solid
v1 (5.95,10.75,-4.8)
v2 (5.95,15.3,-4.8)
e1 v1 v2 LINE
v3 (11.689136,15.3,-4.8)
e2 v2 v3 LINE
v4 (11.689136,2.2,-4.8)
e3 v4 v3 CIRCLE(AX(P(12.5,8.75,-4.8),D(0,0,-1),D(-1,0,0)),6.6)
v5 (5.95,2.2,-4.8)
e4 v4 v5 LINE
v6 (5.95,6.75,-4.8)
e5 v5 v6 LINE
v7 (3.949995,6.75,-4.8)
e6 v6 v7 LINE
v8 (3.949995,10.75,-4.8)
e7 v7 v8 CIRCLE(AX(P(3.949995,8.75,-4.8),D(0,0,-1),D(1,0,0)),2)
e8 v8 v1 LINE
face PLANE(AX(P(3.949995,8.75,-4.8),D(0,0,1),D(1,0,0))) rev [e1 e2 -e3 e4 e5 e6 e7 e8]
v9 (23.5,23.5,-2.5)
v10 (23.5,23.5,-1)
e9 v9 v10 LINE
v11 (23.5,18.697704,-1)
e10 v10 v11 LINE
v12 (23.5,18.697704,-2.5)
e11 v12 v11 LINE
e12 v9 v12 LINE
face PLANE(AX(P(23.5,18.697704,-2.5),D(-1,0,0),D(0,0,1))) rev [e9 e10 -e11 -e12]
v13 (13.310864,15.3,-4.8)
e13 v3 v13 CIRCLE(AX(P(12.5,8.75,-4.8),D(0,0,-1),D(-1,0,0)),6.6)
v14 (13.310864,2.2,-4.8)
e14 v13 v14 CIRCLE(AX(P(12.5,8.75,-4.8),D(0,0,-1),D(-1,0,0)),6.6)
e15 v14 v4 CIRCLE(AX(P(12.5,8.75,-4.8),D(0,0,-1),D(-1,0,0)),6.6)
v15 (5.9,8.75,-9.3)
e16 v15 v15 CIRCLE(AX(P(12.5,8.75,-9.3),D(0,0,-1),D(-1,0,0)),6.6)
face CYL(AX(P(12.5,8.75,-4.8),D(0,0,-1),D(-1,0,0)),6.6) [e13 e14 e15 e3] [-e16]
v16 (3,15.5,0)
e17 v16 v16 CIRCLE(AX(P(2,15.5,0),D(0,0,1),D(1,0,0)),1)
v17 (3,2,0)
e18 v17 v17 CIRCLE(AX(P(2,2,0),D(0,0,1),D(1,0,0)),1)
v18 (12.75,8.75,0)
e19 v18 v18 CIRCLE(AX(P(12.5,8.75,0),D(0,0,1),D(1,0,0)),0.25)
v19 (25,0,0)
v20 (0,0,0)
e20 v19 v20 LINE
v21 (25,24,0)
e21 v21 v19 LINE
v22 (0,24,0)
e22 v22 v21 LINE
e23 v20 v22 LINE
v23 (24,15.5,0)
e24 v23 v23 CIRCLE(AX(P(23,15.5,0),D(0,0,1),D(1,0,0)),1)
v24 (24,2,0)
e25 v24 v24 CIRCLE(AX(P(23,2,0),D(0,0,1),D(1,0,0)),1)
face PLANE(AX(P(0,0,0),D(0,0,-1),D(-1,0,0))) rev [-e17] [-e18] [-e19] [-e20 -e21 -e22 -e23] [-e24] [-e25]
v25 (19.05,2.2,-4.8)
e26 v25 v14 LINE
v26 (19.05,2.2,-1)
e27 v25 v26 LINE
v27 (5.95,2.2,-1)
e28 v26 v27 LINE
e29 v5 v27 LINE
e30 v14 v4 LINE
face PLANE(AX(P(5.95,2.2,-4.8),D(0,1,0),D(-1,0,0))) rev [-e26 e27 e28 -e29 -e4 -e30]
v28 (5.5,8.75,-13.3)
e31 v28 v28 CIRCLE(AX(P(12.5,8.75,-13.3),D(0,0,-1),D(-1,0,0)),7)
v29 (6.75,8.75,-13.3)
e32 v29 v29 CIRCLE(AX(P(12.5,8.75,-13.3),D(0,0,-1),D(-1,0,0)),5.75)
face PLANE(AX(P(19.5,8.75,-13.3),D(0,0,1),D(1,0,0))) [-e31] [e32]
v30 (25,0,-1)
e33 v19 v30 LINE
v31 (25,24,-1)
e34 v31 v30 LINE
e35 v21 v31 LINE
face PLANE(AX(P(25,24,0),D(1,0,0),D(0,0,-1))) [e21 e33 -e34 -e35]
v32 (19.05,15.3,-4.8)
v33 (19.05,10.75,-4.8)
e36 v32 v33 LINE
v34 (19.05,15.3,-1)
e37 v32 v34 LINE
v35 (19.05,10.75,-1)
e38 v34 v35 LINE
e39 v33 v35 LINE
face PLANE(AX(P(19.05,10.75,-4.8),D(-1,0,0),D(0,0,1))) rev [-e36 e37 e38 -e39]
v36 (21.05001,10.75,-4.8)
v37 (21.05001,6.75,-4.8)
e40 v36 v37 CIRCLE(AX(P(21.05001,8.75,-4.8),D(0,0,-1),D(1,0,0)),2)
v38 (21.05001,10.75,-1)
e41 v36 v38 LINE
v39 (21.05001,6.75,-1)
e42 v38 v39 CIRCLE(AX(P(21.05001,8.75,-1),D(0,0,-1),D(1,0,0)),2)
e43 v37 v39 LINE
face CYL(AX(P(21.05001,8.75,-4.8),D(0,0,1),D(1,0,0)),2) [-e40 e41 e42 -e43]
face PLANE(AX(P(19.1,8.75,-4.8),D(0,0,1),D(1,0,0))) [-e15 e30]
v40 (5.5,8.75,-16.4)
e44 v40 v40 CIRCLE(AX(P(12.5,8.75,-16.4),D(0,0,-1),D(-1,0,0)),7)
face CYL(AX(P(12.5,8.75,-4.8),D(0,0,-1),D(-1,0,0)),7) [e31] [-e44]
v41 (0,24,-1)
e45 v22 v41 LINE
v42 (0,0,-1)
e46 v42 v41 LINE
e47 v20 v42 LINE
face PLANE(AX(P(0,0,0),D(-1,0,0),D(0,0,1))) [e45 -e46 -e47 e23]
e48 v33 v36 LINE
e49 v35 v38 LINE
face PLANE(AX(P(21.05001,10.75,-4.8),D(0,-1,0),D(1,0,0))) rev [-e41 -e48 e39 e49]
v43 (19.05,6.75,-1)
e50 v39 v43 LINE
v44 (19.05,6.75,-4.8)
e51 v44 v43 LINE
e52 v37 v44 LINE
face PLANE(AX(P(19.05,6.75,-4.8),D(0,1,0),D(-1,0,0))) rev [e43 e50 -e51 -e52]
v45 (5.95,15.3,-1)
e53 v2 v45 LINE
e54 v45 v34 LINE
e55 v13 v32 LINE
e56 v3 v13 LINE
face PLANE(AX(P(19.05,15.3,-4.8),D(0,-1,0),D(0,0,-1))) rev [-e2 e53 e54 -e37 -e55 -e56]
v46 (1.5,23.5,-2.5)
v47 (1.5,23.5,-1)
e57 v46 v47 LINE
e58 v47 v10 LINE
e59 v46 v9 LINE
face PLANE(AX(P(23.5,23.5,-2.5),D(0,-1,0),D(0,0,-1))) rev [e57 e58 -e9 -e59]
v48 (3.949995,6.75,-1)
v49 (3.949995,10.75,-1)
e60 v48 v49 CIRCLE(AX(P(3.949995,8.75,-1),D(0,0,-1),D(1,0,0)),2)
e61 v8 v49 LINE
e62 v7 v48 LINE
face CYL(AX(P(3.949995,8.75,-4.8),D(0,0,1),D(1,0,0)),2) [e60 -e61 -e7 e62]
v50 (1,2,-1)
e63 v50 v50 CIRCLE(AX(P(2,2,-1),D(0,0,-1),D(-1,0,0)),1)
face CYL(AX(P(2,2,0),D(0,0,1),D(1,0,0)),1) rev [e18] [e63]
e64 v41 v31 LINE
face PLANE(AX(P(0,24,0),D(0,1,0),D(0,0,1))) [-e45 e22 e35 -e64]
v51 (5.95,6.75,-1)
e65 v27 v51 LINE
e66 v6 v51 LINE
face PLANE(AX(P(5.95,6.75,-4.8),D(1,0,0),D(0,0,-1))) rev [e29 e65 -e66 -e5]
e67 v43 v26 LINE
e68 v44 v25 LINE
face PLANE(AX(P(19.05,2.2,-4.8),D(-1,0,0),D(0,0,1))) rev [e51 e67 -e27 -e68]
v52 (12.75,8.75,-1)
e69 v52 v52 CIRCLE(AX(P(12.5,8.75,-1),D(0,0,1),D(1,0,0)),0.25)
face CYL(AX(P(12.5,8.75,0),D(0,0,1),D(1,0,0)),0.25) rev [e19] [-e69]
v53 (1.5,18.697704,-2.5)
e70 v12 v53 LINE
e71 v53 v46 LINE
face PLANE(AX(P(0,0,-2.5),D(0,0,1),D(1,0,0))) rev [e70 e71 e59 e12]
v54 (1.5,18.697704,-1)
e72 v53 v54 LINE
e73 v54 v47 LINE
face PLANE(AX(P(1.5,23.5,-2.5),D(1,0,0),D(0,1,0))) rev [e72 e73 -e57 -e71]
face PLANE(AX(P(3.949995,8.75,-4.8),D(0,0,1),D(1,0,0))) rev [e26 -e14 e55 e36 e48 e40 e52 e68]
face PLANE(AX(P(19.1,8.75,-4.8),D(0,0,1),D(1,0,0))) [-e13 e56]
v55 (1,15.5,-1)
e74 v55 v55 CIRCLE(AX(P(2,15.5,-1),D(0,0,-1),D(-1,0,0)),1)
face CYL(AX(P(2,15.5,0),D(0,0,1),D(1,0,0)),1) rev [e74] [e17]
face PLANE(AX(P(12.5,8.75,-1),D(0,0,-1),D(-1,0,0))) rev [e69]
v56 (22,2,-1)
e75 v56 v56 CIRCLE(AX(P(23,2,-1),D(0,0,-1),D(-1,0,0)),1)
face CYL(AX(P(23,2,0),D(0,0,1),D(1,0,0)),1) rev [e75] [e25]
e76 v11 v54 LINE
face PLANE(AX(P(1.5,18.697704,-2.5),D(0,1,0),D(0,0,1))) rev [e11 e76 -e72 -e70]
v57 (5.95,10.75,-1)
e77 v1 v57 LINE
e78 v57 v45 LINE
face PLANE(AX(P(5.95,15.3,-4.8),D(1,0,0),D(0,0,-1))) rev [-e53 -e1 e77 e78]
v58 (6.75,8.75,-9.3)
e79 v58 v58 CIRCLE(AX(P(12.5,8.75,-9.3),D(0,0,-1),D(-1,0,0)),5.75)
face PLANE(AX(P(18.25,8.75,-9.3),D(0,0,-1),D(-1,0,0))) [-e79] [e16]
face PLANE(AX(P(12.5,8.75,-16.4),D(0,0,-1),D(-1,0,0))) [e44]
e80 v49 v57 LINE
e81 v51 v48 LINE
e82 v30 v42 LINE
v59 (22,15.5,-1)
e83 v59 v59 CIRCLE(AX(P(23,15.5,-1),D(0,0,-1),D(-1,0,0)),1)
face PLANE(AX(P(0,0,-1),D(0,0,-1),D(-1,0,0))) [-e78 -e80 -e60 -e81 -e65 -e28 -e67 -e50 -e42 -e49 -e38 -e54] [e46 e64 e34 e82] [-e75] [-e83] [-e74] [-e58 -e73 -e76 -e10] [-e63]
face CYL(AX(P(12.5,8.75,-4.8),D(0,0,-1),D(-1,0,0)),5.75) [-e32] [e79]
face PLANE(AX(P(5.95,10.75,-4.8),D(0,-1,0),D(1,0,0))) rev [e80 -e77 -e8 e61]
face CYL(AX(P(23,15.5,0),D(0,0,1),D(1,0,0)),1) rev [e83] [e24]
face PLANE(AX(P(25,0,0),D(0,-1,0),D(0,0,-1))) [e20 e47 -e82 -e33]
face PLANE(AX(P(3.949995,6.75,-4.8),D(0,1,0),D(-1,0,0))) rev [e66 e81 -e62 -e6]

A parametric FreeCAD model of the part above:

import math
import FreeCAD as App
import Part
import Sketcher

doc = App.newDocument("Part")
body = doc.addObject("PartDesign::Body", "Body")

# Sketch on XY plane
sketch1 = body.newObject("Sketcher::SketchObject", "Sketch")
sketch1.AttachmentSupport = (doc.getObject("XY_Plane"), [""])
sketch1.MapMode = "FlatFace"
sketch1.AttachmentOffset = App.Placement(App.Vector(0, 0, -1), App.Rotation())
sketch1.addGeometry(Part.LineSegment(App.Vector(25, 24, 0), App.Vector(25, 0, 0)), False)
sketch1.addGeometry(Part.LineSegment(App.Vector(25, 0, 0), App.Vector(0, 0, 0)), False)
sketch1.addGeometry(Part.LineSegment(App.Vector(0, 0, 0), App.Vector(0, 24, 0)), False)
sketch1.addGeometry(Part.LineSegment(App.Vector(0, 24, 0), App.Vector(25, 24, 0)), False)
sketch1.addConstraint(Sketcher.Constraint("Coincident", 0, 2, 1, 1))
sketch1.addConstraint(Sketcher.Constraint("Coincident", 1, 2, 2, 1))
sketch1.addConstraint(Sketcher.Constraint("Coincident", 2, 2, 3, 1))
sketch1.addConstraint(Sketcher.Constraint("Coincident", 3, 2, 0, 1))
sketch1.addConstraint(Sketcher.Constraint("Vertical", 0))
sketch1.addConstraint(Sketcher.Constraint("Horizontal", 1))
sketch1.addConstraint(Sketcher.Constraint("Vertical", 2))
sketch1.addConstraint(Sketcher.Constraint("Horizontal", 3))
sketch1.addConstraint(Sketcher.Constraint("Coincident", 1, 2, -1, 1))
sketch1.addConstraint(Sketcher.Constraint("DistanceX", 1, 2, 1, 1, 25.0))
sketch1.addConstraint(Sketcher.Constraint("DistanceY", 0, 2, 0, 1, 24.0))
pad1 = body.newObject("PartDesign::Pad", "Pad")
pad1.Profile = sketch1
pad1.Length = 1

# Sketch on XY plane
sketch2 = body.newObject("Sketcher::SketchObject", "Sketch001")
sketch2.AttachmentSupport = (doc.getObject("XY_Plane"), [""])
sketch2.MapMode = "FlatFace"
sketch2.AttachmentOffset = App.Placement(App.Vector(0, 0, -1), App.Rotation())
sketch2.addGeometry(Part.LineSegment(App.Vector(3.949995, 10.75, 0), App.Vector(5.95, 10.75, 0)), False)
sketch2.addGeometry(Part.LineSegment(App.Vector(5.95, 10.75, 0), App.Vector(5.95, 15.3, 0)), False)
sketch2.addGeometry(Part.LineSegment(App.Vector(5.95, 15.3, 0), App.Vector(19.05, 15.3, 0)), False)
sketch2.addGeometry(Part.LineSegment(App.Vector(19.05, 15.3, 0), App.Vector(19.05, 10.75, 0)), False)
sketch2.addGeometry(Part.LineSegment(App.Vector(19.05, 10.75, 0), App.Vector(21.05001, 10.75, 0)), False)
sketch2.addGeometry(Part.ArcOfCircle(Part.Circle(App.Vector(21.05001, 8.75, 0), App.Vector(0, 0, 1), 2), math.radians(-90), math.radians(90)), False)
sketch2.addGeometry(Part.LineSegment(App.Vector(21.05001, 6.75, 0), App.Vector(19.05, 6.75, 0)), False)
sketch2.addGeometry(Part.LineSegment(App.Vector(19.05, 6.75, 0), App.Vector(19.05, 2.2, 0)), False)
sketch2.addGeometry(Part.LineSegment(App.Vector(19.05, 2.2, 0), App.Vector(5.95, 2.2, 0)), False)
sketch2.addGeometry(Part.LineSegment(App.Vector(5.95, 2.2, 0), App.Vector(5.95, 6.75, 0)), False)
sketch2.addGeometry(Part.LineSegment(App.Vector(5.95, 6.75, 0), App.Vector(3.949995, 6.75, 0)), False)
sketch2.addGeometry(Part.ArcOfCircle(Part.Circle(App.Vector(3.949995, 8.75, 0), App.Vector(0, 0, 1), 2), math.radians(90), math.radians(270)), False)
sketch2.addConstraint(Sketcher.Constraint("Coincident", 0, 2, 1, 1))
sketch2.addConstraint(Sketcher.Constraint("Coincident", 1, 2, 2, 1))
sketch2.addConstraint(Sketcher.Constraint("Coincident", 2, 2, 3, 1))
sketch2.addConstraint(Sketcher.Constraint("Coincident", 3, 2, 4, 1))
sketch2.addConstraint(Sketcher.Constraint("Tangent", 4, 2, 5, 2))
sketch2.addConstraint(Sketcher.Constraint("Tangent", 5, 1, 6, 1))
sketch2.addConstraint(Sketcher.Constraint("Coincident", 6, 2, 7, 1))
sketch2.addConstraint(Sketcher.Constraint("Coincident", 7, 2, 8, 1))
sketch2.addConstraint(Sketcher.Constraint("Coincident", 8, 2, 9, 1))
sketch2.addConstraint(Sketcher.Constraint("Coincident", 9, 2, 10, 1))
sketch2.addConstraint(Sketcher.Constraint("Tangent", 10, 2, 11, 2))
sketch2.addConstraint(Sketcher.Constraint("Tangent", 11, 1, 0, 1))
sketch2.addConstraint(Sketcher.Constraint("Horizontal", 0))
sketch2.addConstraint(Sketcher.Constraint("Vertical", 1))
sketch2.addConstraint(Sketcher.Constraint("Horizontal", 2))
sketch2.addConstraint(Sketcher.Constraint("Vertical", 3))
sketch2.addConstraint(Sketcher.Constraint("Horizontal", 4))
sketch2.addConstraint(Sketcher.Constraint("Horizontal", 6))
sketch2.addConstraint(Sketcher.Constraint("Vertical", 7))
sketch2.addConstraint(Sketcher.Constraint("Horizontal", 8))
sketch2.addConstraint(Sketcher.Constraint("Vertical", 9))
sketch2.addConstraint(Sketcher.Constraint("Horizontal", 10))
sketch2.addConstraint(Sketcher.Constraint("Equal", 5, 11))
sketch2.addConstraint(Sketcher.Constraint("Horizontal", 5, 3, 11, 3))
sketch2.addConstraint(Sketcher.Constraint("Vertical", 3, 2, 6, 2))
sketch2.addConstraint(Sketcher.Constraint("Vertical", 1, 2, 8, 2))
sketch2.addConstraint(Sketcher.Constraint("Equal", 3, 7))
sketch2.addConstraint(Sketcher.Constraint("Radius", 5, 2.0))
sketch2.addConstraint(Sketcher.Constraint("DistanceX", 2, 1, 2, 2, 13.1))
sketch2.addConstraint(Sketcher.Constraint("DistanceY", 1, 1, 1, 2, 4.55))
sketch2.addConstraint(Sketcher.Constraint("DistanceY", -1, 1, 1, 2, 15.3))
sketch2.addConstraint(Sketcher.Constraint("DistanceX", -1, 1, 0, 2, 5.95))
sketch2.addConstraint(Sketcher.Constraint("DistanceX", 4, 1, 4, 2, 2.00001))
sketch2.addConstraint(Sketcher.Constraint("DistanceX", 0, 1, 0, 2, 2.000005))
pad2 = body.newObject("PartDesign::Pad", "Pad001")
pad2.Profile = sketch2
pad2.Length = 3.8
pad2.Reversed = True

# Sketch on XY plane
sketch3 = body.newObject("Sketcher::SketchObject", "Sketch002")
sketch3.AttachmentSupport = (doc.getObject("XY_Plane"), [""])
sketch3.MapMode = "FlatFace"
sketch3.AttachmentOffset = App.Placement(App.Vector(0, 0, -1), App.Rotation())
sketch3.addGeometry(Part.LineSegment(App.Vector(23.5, 23.5, 0), App.Vector(23.5, 18.697704, 0)), False)
sketch3.addGeometry(Part.LineSegment(App.Vector(23.5, 18.697704, 0), App.Vector(1.5, 18.697704, 0)), False)
sketch3.addGeometry(Part.LineSegment(App.Vector(1.5, 18.697704, 0), App.Vector(1.5, 23.5, 0)), False)
sketch3.addGeometry(Part.LineSegment(App.Vector(1.5, 23.5, 0), App.Vector(23.5, 23.5, 0)), False)
sketch3.addConstraint(Sketcher.Constraint("Coincident", 0, 2, 1, 1))
sketch3.addConstraint(Sketcher.Constraint("Coincident", 1, 2, 2, 1))
sketch3.addConstraint(Sketcher.Constraint("Coincident", 2, 2, 3, 1))
sketch3.addConstraint(Sketcher.Constraint("Coincident", 3, 2, 0, 1))
sketch3.addConstraint(Sketcher.Constraint("Vertical", 0))
sketch3.addConstraint(Sketcher.Constraint("Horizontal", 1))
sketch3.addConstraint(Sketcher.Constraint("Vertical", 2))
sketch3.addConstraint(Sketcher.Constraint("Horizontal", 3))
sketch3.addConstraint(Sketcher.Constraint("DistanceX", 1, 2, 1, 1, 22.0))
sketch3.addConstraint(Sketcher.Constraint("DistanceX", -1, 1, 0, 2, 23.5))
sketch3.addConstraint(Sketcher.Constraint("DistanceY", -1, 1, 2, 2, 23.5))
sketch3.addConstraint(Sketcher.Constraint("DistanceY", 0, 2, 0, 1, 4.802296))
pad3 = body.newObject("PartDesign::Pad", "Pad002")
pad3.Profile = sketch3
pad3.Length = 1.5
pad3.Reversed = True

# Sketch on XZ plane
sketch4 = body.newObject("Sketcher::SketchObject", "Sketch003")
sketch4.AttachmentSupport = (doc.getObject("XZ_Plane"), [""])
sketch4.MapMode = "FlatFace"
sketch4.AttachmentOffset = App.Placement(App.Vector(0, 0, -8.75), App.Rotation())
sketch4.addGeometry(Part.LineSegment(App.Vector(19.1, -4.8, 0), App.Vector(12.5, -4.8, 0)), False)
sketch4.addGeometry(Part.LineSegment(App.Vector(12.5, -4.8, 0), App.Vector(12.5, -16.4, 0)), False)
sketch4.addGeometry(Part.LineSegment(App.Vector(12.5, -16.4, 0), App.Vector(19.5, -16.4, 0)), False)
sketch4.addGeometry(Part.LineSegment(App.Vector(19.5, -16.4, 0), App.Vector(19.5, -13.3, 0)), False)
sketch4.addGeometry(Part.LineSegment(App.Vector(19.5, -13.3, 0), App.Vector(18.25, -13.3, 0)), False)
sketch4.addGeometry(Part.LineSegment(App.Vector(18.25, -13.3, 0), App.Vector(18.25, -9.3, 0)), False)
sketch4.addGeometry(Part.LineSegment(App.Vector(18.25, -9.3, 0), App.Vector(19.1, -9.3, 0)), False)
sketch4.addGeometry(Part.LineSegment(App.Vector(19.1, -9.3, 0), App.Vector(19.1, -4.8, 0)), False)
sketch4.addGeometry(Part.LineSegment(App.Vector(12.5, -4.8, 0), App.Vector(12.5, -16.4, 0)), True)  # axis
sketch4.addConstraint(Sketcher.Constraint("Coincident", 0, 2, 1, 1))
sketch4.addConstraint(Sketcher.Constraint("Coincident", 1, 2, 2, 1))
sketch4.addConstraint(Sketcher.Constraint("Coincident", 2, 2, 3, 1))
sketch4.addConstraint(Sketcher.Constraint("Coincident", 3, 2, 4, 1))
sketch4.addConstraint(Sketcher.Constraint("Coincident", 4, 2, 5, 1))
sketch4.addConstraint(Sketcher.Constraint("Coincident", 5, 2, 6, 1))
sketch4.addConstraint(Sketcher.Constraint("Coincident", 6, 2, 7, 1))
sketch4.addConstraint(Sketcher.Constraint("Coincident", 7, 2, 0, 1))
sketch4.addConstraint(Sketcher.Constraint("Horizontal", 0))
sketch4.addConstraint(Sketcher.Constraint("Vertical", 1))
sketch4.addConstraint(Sketcher.Constraint("Horizontal", 2))
sketch4.addConstraint(Sketcher.Constraint("Vertical", 3))
sketch4.addConstraint(Sketcher.Constraint("Horizontal", 4))
sketch4.addConstraint(Sketcher.Constraint("Vertical", 5))
sketch4.addConstraint(Sketcher.Constraint("Horizontal", 6))
sketch4.addConstraint(Sketcher.Constraint("Vertical", 7))
sketch4.addConstraint(Sketcher.Constraint("Vertical", 8))
sketch4.addConstraint(Sketcher.Constraint("Coincident", 8, 1, 0, 2))
sketch4.addConstraint(Sketcher.Constraint("Horizontal", 2, 2, 8, 2))
sketch4.addConstraint(Sketcher.Constraint("DistanceX", 2, 1, 2, 2, 7.0))
sketch4.addConstraint(Sketcher.Constraint("DistanceY", 5, 1, 5, 2, 4.0))
sketch4.addConstraint(Sketcher.Constraint("DistanceX", 0, 2, 0, 1, 6.6))
sketch4.addConstraint(Sketcher.Constraint("DistanceY", 1, 2, 1, 1, 11.6))
sketch4.addConstraint(Sketcher.Constraint("DistanceY", 3, 1, 3, 2, 3.1))
sketch4.addConstraint(Sketcher.Constraint("DistanceX", 4, 2, 4, 1, 1.25))
sketch4.addConstraint(Sketcher.Constraint("DistanceX", -1, 1, 0, 2, 12.5))
sketch4.addConstraint(Sketcher.Constraint("DistanceY", 0, 2, -1, 1, 4.8))
revolution = body.newObject("PartDesign::Revolution", "Revolution")
revolution.Profile = sketch4
revolution.ReferenceAxis = (sketch4, ["Axis0"])
revolution.Angle = 360

# Sketch on XY plane
sketch5 = body.newObject("Sketcher::SketchObject", "Sketch004")
sketch5.AttachmentSupport = (doc.getObject("XY_Plane"), [""])
sketch5.MapMode = "FlatFace"
sketch5.addGeometry(Part.Circle(App.Vector(12.5, 8.75, 0), App.Vector(0, 0, 1), 0.25), False)
sketch5.addConstraint(Sketcher.Constraint("Diameter", 0, 0.5))
sketch5.addConstraint(Sketcher.Constraint("DistanceX", -1, 1, 0, 3, 12.5))
sketch5.addConstraint(Sketcher.Constraint("DistanceY", -1, 1, 0, 3, 8.75))
doc.recompute()
hole = body.newObject("PartDesign::Hole", "Hole")
hole.Profile = sketch5
hole.ThreadType = "None"
hole.Diameter = 0.5
hole.DepthType = "Dimension"
hole.Depth = 1
hole.DrillPoint = "Flat"

# Sketch on XY plane
sketch6 = body.newObject("Sketcher::SketchObject", "Sketch005")
sketch6.AttachmentSupport = (doc.getObject("XY_Plane"), [""])
sketch6.MapMode = "FlatFace"
sketch6.addGeometry(Part.Circle(App.Vector(2, 2, 0), App.Vector(0, 0, 1), 1), False)
sketch6.addGeometry(Part.Circle(App.Vector(2, 15.5, 0), App.Vector(0, 0, 1), 1), False)
sketch6.addGeometry(Part.Circle(App.Vector(23, 15.5, 0), App.Vector(0, 0, 1), 1), False)
sketch6.addGeometry(Part.Circle(App.Vector(23, 2, 0), App.Vector(0, 0, 1), 1), False)
sketch6.addConstraint(Sketcher.Constraint("Equal", 0, 1))
sketch6.addConstraint(Sketcher.Constraint("Equal", 1, 2))
sketch6.addConstraint(Sketcher.Constraint("Equal", 2, 3))
sketch6.addConstraint(Sketcher.Constraint("Horizontal", 1, 3, 2, 3))
sketch6.addConstraint(Sketcher.Constraint("Horizontal", 0, 3, 3, 3))
sketch6.addConstraint(Sketcher.Constraint("Vertical", 0, 3, 1, 3))
sketch6.addConstraint(Sketcher.Constraint("Vertical", 2, 3, 3, 3))
sketch6.addConstraint(Sketcher.Constraint("Diameter", 0, 2.0))
sketch6.addConstraint(Sketcher.Constraint("DistanceX", -1, 1, 0, 3, 2.0))
sketch6.addConstraint(Sketcher.Constraint("DistanceY", -1, 1, 0, 3, 2.0))
sketch6.addConstraint(Sketcher.Constraint("DistanceX", -1, 1, 2, 3, 23.0))
sketch6.addConstraint(Sketcher.Constraint("DistanceY", -1, 1, 1, 3, 15.5))
doc.recompute()
hole2 = body.newObject("PartDesign::Hole", "Hole001")
hole2.Profile = sketch6
hole2.ThreadType = "None"
hole2.Diameter = 2
hole2.DepthType = "Dimension"
hole2.Depth = 16.4
hole2.DrillPoint = "Flat"

doc.recompute()
